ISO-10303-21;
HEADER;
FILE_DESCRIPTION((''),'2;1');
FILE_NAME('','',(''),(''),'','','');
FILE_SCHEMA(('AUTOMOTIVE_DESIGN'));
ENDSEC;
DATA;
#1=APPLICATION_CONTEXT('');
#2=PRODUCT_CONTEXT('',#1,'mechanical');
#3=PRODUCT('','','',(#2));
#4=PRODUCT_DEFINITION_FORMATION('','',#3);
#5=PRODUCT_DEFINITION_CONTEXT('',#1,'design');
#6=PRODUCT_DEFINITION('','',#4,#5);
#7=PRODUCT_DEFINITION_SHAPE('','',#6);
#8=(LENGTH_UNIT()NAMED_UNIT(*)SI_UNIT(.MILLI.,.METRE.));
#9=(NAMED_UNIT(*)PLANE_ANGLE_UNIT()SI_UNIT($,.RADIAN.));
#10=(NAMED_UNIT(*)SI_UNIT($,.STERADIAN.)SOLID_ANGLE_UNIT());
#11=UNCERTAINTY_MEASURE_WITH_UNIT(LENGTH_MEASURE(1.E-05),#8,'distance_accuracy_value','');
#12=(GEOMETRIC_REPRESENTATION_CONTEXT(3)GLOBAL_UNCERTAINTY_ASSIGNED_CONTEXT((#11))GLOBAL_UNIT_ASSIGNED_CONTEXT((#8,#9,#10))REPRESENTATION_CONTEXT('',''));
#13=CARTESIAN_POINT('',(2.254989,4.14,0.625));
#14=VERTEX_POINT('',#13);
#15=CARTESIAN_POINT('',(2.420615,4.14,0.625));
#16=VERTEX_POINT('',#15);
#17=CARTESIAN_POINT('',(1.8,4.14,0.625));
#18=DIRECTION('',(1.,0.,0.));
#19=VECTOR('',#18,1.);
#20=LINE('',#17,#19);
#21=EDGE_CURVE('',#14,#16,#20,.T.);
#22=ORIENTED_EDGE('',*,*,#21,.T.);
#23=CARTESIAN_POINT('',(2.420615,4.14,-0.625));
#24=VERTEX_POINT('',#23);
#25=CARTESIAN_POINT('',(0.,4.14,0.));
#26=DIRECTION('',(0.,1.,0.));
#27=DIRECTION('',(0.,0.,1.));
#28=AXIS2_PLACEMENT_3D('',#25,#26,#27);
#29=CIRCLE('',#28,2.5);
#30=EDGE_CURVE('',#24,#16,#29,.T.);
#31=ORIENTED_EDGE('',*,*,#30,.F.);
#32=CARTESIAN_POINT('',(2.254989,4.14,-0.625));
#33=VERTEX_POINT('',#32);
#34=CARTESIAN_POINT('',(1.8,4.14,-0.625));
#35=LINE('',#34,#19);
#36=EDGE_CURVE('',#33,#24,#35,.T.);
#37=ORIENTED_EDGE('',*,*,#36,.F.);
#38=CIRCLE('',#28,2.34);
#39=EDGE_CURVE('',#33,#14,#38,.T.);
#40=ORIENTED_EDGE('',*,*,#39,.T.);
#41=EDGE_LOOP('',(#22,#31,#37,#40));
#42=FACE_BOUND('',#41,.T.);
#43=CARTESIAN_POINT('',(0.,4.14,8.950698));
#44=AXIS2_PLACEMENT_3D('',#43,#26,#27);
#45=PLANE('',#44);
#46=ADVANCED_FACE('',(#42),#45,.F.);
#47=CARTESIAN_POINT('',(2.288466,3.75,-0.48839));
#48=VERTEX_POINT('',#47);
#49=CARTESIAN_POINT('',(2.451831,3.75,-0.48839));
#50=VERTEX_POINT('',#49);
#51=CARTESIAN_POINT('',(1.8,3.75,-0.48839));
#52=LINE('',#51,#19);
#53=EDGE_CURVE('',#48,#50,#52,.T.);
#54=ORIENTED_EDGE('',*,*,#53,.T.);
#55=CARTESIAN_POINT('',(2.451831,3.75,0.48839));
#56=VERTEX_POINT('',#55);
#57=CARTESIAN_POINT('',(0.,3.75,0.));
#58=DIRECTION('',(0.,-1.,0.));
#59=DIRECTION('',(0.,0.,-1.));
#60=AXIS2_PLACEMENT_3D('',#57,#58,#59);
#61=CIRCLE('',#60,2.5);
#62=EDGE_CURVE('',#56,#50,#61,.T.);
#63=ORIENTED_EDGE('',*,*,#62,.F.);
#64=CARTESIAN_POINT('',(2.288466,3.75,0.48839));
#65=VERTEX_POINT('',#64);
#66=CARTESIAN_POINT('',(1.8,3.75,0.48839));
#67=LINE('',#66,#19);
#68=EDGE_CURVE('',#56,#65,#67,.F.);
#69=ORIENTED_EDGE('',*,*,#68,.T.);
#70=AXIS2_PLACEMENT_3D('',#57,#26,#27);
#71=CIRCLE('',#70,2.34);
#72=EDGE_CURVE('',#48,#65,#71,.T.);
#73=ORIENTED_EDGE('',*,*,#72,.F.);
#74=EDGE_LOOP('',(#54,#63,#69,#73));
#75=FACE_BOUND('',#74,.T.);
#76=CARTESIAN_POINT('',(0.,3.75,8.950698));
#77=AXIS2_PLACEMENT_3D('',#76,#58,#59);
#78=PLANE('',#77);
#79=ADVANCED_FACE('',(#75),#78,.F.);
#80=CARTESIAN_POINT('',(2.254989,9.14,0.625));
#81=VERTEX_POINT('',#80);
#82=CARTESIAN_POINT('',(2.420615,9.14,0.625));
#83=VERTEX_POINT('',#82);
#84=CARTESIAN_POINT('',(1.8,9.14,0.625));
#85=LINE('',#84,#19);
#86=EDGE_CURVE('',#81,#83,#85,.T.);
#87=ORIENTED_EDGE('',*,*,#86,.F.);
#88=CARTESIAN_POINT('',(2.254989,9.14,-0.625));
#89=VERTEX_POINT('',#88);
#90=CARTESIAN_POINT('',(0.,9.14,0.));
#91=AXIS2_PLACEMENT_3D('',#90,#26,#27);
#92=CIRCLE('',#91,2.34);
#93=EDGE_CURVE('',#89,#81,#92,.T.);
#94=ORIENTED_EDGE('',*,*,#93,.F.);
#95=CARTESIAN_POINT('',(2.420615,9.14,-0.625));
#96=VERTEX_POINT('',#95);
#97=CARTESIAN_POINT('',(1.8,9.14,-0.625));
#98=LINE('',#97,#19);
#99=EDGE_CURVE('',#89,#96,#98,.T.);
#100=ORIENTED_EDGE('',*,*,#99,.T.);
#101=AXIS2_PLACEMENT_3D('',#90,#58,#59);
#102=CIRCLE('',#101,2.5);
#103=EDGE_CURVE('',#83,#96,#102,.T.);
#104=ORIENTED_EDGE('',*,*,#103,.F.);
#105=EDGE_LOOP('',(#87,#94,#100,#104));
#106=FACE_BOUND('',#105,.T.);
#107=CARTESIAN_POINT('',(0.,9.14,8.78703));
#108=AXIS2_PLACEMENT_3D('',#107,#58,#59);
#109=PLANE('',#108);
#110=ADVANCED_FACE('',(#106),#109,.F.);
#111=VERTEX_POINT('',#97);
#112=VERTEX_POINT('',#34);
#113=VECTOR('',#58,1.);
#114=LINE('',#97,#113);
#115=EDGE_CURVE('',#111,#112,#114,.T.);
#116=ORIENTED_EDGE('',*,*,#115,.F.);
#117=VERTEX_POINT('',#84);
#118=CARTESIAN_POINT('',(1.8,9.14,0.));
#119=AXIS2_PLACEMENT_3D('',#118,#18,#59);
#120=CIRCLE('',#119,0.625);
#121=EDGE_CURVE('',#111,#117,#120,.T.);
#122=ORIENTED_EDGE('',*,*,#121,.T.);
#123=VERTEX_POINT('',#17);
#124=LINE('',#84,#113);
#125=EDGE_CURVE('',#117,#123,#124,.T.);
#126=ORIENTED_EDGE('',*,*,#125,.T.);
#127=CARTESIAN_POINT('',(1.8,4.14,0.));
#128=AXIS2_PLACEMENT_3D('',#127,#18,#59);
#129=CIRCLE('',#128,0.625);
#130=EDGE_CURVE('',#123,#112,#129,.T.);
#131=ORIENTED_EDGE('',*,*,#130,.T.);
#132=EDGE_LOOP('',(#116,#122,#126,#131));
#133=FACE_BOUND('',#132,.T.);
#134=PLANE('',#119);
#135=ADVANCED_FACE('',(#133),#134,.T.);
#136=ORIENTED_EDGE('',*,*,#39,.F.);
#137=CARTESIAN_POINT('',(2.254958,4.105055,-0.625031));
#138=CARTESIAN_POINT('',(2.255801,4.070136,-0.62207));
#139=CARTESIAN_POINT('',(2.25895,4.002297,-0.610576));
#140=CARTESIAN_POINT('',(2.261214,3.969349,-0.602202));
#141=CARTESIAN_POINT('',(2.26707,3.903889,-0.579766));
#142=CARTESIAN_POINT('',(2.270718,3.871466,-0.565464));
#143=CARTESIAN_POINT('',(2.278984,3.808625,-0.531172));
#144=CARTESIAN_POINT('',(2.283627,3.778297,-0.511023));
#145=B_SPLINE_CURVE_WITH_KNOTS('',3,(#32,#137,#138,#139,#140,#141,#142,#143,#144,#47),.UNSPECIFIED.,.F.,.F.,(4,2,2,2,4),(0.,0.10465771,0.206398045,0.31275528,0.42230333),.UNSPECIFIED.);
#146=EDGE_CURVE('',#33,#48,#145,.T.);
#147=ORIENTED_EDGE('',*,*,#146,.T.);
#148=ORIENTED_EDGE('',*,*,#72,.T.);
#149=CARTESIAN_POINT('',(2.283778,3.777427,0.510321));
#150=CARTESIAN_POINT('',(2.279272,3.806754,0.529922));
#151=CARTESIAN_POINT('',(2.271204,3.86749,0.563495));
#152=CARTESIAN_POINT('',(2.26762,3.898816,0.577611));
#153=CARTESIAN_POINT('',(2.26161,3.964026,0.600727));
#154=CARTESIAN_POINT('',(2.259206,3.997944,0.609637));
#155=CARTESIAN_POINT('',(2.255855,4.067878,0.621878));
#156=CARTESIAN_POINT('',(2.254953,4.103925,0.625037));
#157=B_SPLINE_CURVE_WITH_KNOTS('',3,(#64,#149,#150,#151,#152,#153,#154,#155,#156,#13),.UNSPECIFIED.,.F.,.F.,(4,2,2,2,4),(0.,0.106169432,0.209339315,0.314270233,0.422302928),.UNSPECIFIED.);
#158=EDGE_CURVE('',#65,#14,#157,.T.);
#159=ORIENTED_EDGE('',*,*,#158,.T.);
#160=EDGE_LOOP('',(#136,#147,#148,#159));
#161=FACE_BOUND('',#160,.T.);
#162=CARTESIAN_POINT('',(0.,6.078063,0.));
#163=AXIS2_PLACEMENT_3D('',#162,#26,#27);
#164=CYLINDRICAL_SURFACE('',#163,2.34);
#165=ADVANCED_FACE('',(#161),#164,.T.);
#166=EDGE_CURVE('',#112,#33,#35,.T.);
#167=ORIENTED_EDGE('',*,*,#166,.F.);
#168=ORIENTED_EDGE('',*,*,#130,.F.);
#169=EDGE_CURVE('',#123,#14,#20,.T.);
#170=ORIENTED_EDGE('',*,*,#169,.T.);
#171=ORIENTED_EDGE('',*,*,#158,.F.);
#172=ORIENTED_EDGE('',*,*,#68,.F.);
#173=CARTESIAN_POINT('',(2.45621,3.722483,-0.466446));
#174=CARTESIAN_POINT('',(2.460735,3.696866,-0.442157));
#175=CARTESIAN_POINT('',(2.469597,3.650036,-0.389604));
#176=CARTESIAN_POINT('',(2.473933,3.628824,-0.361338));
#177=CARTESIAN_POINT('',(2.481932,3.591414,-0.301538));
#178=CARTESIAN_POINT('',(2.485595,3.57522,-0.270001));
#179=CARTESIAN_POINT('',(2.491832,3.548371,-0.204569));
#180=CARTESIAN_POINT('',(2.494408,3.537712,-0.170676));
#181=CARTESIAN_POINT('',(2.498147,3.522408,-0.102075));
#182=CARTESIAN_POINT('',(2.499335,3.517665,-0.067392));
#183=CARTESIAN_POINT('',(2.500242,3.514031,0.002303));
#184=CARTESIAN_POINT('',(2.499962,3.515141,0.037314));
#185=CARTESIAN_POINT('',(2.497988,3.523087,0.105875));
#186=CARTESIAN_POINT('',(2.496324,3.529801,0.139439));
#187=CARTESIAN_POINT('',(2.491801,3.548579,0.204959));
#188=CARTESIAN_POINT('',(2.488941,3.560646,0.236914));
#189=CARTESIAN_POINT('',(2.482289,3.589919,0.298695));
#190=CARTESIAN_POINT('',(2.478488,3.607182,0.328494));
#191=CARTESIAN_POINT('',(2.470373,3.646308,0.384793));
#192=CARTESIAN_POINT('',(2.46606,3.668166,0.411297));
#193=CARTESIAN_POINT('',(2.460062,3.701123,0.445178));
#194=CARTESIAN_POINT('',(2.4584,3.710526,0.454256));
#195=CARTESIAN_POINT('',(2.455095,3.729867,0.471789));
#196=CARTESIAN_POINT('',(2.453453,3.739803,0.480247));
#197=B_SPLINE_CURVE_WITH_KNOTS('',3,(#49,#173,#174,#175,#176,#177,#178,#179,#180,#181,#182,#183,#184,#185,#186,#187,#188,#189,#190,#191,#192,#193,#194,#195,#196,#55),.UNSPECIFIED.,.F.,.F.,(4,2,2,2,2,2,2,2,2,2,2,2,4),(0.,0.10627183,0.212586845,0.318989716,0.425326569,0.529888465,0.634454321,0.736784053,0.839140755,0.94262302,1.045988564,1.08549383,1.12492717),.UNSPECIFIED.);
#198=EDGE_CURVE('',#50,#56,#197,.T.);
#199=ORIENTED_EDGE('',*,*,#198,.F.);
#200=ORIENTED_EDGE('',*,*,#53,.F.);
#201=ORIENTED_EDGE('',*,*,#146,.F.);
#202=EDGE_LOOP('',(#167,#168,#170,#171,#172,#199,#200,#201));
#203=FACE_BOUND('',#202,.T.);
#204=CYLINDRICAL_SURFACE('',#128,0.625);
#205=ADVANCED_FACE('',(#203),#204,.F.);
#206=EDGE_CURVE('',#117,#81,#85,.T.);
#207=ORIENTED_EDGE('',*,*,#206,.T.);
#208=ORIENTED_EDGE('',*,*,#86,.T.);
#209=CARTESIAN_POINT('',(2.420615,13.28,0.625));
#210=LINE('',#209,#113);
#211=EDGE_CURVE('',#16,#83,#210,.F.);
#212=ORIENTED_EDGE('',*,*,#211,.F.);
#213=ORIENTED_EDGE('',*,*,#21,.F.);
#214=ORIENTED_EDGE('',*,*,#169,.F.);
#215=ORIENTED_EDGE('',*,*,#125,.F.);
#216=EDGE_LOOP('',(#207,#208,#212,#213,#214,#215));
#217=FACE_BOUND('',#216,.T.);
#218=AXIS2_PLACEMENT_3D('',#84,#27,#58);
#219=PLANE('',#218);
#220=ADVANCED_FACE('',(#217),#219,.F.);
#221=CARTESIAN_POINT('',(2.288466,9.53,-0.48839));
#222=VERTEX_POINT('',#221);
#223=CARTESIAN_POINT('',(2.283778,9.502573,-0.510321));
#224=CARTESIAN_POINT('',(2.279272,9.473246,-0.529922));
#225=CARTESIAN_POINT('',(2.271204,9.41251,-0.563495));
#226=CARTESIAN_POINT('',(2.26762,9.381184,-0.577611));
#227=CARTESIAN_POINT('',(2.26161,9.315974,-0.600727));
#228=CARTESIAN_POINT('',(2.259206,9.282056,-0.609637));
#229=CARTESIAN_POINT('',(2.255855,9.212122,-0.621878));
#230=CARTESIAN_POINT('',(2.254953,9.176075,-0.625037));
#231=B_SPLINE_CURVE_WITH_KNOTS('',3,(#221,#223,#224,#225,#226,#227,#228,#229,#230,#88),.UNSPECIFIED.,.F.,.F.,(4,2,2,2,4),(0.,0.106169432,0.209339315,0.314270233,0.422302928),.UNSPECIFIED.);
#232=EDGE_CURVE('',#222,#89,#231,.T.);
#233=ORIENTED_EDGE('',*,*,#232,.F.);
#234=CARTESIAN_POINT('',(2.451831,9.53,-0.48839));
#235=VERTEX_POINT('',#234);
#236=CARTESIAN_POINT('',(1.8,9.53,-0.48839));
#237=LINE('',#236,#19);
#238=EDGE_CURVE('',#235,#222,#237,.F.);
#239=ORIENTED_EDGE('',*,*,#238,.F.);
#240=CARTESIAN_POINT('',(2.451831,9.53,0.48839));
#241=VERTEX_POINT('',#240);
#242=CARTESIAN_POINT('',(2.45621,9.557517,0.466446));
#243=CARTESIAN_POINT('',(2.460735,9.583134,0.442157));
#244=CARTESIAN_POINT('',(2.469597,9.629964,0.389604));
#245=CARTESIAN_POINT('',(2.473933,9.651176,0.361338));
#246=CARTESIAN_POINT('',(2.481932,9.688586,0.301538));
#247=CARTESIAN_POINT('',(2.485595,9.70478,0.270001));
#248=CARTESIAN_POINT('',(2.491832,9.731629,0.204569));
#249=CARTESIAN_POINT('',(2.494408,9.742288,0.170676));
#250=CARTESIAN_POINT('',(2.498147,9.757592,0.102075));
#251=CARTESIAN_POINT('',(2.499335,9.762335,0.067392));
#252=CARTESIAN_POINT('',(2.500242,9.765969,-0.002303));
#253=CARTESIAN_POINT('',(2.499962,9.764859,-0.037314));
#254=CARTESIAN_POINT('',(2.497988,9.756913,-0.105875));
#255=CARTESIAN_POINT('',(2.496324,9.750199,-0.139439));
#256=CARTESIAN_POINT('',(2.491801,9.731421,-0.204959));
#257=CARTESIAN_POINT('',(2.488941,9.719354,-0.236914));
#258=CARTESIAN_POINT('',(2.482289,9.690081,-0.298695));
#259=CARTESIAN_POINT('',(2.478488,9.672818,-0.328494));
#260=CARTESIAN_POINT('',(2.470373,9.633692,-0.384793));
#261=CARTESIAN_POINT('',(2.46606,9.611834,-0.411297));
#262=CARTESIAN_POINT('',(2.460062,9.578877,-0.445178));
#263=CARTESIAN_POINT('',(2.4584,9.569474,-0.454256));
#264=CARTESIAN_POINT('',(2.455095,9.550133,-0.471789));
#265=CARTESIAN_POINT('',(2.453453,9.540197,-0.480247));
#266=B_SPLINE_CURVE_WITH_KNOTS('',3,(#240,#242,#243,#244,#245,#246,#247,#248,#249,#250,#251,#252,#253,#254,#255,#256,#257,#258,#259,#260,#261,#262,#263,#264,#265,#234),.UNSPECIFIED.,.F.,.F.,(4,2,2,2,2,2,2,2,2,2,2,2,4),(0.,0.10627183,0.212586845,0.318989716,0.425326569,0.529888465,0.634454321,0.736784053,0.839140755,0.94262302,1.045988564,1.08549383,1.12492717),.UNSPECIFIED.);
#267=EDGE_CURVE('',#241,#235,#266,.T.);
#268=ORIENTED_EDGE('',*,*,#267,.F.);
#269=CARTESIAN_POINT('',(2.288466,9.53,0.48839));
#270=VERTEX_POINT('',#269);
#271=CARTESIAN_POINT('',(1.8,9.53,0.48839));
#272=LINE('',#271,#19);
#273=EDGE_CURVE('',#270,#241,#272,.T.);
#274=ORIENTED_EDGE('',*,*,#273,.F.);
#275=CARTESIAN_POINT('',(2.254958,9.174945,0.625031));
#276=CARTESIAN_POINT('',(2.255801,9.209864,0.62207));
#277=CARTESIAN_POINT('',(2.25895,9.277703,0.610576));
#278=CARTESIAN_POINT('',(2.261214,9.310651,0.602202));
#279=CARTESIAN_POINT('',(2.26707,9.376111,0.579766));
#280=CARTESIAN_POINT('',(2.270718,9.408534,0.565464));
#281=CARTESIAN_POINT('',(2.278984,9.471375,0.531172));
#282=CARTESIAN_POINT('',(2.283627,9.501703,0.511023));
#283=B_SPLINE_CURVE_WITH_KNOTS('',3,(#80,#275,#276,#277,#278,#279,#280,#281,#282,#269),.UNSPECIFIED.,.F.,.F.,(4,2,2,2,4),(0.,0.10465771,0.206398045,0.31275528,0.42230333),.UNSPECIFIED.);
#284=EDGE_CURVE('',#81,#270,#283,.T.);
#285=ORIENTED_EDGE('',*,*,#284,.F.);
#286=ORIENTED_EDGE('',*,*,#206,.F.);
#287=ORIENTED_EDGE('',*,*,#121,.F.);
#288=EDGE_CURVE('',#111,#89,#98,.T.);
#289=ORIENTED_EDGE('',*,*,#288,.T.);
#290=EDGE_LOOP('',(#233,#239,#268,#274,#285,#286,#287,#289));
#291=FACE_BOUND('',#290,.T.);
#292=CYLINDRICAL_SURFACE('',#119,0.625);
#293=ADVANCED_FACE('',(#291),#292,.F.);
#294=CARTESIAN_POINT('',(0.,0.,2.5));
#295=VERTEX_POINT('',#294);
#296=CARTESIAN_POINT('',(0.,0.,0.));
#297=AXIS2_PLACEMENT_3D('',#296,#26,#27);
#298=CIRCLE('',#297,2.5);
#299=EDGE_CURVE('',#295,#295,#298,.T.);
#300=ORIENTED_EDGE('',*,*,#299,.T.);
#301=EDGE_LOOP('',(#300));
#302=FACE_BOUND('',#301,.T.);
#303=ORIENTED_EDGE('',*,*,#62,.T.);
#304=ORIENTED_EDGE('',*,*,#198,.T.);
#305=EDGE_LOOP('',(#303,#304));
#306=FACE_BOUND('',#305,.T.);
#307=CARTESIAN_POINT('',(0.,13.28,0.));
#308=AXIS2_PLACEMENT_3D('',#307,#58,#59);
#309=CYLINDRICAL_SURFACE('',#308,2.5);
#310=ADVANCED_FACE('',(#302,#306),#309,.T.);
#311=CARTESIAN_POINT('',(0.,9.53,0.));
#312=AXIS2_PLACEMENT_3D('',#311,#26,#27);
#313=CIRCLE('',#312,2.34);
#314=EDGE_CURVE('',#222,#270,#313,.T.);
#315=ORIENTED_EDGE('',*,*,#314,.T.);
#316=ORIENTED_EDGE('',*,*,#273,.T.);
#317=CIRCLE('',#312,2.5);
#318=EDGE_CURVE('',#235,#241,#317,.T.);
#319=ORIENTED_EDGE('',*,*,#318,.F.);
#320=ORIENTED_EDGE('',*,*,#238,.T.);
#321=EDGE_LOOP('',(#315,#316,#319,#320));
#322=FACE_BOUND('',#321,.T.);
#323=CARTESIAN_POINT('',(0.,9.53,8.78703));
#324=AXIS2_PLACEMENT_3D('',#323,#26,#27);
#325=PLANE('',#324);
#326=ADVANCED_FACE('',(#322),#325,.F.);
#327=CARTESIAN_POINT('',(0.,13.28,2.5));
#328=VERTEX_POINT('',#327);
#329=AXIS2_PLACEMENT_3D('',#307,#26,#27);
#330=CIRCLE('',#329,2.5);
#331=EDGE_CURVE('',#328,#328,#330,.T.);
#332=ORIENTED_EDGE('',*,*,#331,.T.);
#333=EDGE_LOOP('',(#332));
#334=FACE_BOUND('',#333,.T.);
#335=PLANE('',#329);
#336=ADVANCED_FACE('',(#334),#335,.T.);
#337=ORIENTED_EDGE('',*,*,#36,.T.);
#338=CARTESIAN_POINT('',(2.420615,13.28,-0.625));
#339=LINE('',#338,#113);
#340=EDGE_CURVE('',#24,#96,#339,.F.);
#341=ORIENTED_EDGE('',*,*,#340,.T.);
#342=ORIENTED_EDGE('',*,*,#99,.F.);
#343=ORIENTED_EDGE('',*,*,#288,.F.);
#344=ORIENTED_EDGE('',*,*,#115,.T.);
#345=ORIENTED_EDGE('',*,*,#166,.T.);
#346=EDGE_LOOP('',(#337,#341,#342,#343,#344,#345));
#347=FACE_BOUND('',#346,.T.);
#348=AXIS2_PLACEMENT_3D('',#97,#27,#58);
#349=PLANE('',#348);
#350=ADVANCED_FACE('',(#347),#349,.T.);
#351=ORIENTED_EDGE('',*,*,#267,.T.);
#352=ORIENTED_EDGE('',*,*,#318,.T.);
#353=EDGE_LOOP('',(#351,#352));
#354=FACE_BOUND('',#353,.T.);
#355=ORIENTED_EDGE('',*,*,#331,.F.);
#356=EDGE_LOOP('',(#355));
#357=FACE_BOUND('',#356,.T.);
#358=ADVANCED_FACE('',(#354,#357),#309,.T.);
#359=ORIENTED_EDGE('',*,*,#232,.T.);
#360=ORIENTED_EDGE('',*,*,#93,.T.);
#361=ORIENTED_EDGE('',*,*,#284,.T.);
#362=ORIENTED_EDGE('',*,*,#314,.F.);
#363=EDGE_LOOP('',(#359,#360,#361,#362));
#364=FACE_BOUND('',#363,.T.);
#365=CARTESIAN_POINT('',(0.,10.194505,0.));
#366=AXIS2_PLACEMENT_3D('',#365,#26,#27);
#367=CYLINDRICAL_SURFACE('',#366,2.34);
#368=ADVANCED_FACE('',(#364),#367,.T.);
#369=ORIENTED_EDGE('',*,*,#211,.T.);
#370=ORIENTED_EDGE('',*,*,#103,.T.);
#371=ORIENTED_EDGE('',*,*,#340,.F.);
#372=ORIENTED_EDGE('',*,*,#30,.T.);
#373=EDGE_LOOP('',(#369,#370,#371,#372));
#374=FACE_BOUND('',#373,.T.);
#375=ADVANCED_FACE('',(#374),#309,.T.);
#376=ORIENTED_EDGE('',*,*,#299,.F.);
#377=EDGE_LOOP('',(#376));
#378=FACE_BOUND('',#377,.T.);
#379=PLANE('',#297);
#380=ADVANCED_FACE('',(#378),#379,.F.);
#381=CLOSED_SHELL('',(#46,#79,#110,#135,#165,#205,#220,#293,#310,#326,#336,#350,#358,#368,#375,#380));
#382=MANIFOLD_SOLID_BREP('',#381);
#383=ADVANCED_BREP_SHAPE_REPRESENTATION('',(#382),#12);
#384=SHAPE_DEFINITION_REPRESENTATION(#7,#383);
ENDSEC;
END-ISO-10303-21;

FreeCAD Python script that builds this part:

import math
import FreeCAD as App
import Part
import Sketcher
from FreeCAD import Vector

doc = App.newDocument("Part")
body = doc.addObject("PartDesign::Body", "Body")

sketch1 = body.newObject("Sketcher::SketchObject", "Sketch")
sketch1.AttachmentSupport = (doc.getObject("XZ_Plane"), [""])
sketch1.MapMode = "FlatFace"
sketch1.addGeometry(Part.Circle(Vector(0, 0, 0), Vector(0, 0, 1), 2.5), False)
sketch1.addConstraint(Sketcher.Constraint("Coincident", 0, 3, -1, 1))
sketch1.addConstraint(Sketcher.Constraint("Diameter", 0, 5.0))
pad1 = body.newObject("PartDesign::Pad", "Pad")
pad1.Profile = sketch1
pad1.Length = 13.28
pad1.Reversed = True

sketch2 = body.newObject("Sketcher::SketchObject", "Sketch001")
sketch2.AttachmentSupport = (doc.getObject("YZ_Plane"), [""])
sketch2.MapMode = "FlatFace"
sketch2.addGeometry(Part.LineSegment(Vector(9.53, 8.78703, 0), Vector(9.14, 8.78703, 0)), False)
sketch2.addGeometry(Part.LineSegment(Vector(9.14, 8.78703, 0), Vector(9.14, 2.34, 0)), False)
sketch2.addGeometry(Part.LineSegment(Vector(9.14, 2.34, 0), Vector(9.53, 2.34, 0)), False)
sketch2.addGeometry(Part.LineSegment(Vector(9.53, 2.34, 0), Vector(9.53, 8.78703, 0)), False)
sketch2.addConstraint(Sketcher.Constraint("Coincident", 0, 2, 1, 1))
sketch2.addConstraint(Sketcher.Constraint("Coincident", 1, 2, 2, 1))
sketch2.addConstraint(Sketcher.Constraint("Coincident", 2, 2, 3, 1))
sketch2.addConstraint(Sketcher.Constraint("Coincident", 3, 2, 0, 1))
sketch2.addConstraint(Sketcher.Constraint("Horizontal", 0))
sketch2.addConstraint(Sketcher.Constraint("Vertical", 1))
sketch2.addConstraint(Sketcher.Constraint("Horizontal", 2))
sketch2.addConstraint(Sketcher.Constraint("Vertical", 3))
sketch2.addConstraint(Sketcher.Constraint("DistanceX", 0, 2, 0, 1, 0.39))
sketch2.addConstraint(Sketcher.Constraint("DistanceX", -1, 1, 0, 2, 9.14))
sketch2.addConstraint(Sketcher.Constraint("DistanceY", -1, 1, 1, 2, 2.34))
sketch2.addConstraint(Sketcher.Constraint("DistanceY", 1, 2, 1, 1, 6.44703))
groove = body.newObject("PartDesign::Groove", "Groove")
groove.Profile = sketch2
groove.ReferenceAxis = (sketch2, ["H_Axis"])
groove.Angle = 360

sketch3 = body.newObject("Sketcher::SketchObject", "Sketch002")
sketch3.AttachmentSupport = (doc.getObject("YZ_Plane"), [""])
sketch3.MapMode = "FlatFace"
sketch3.addGeometry(Part.LineSegment(Vector(4.14, 8.950698, 0), Vector(3.75, 8.950698, 0)), False)
sketch3.addGeometry(Part.LineSegment(Vector(3.75, 8.950698, 0), Vector(3.75, 2.34, 0)), False)
sketch3.addGeometry(Part.LineSegment(Vector(3.75, 2.34, 0), Vector(4.14, 2.34, 0)), False)
sketch3.addGeometry(Part.LineSegment(Vector(4.14, 2.34, 0), Vector(4.14, 8.950698, 0)), False)
sketch3.addConstraint(Sketcher.Constraint("Coincident", 0, 2, 1, 1))
sketch3.addConstraint(Sketcher.Constraint("Coincident", 1, 2, 2, 1))
sketch3.addConstraint(Sketcher.Constraint("Coincident", 2, 2, 3, 1))
sketch3.addConstraint(Sketcher.Constraint("Coincident", 3, 2, 0, 1))
sketch3.addConstraint(Sketcher.Constraint("Horizontal", 0))
sketch3.addConstraint(Sketcher.Constraint("Vertical", 1))
sketch3.addConstraint(Sketcher.Constraint("Horizontal", 2))
sketch3.addConstraint(Sketcher.Constraint("Vertical", 3))
sketch3.addConstraint(Sketcher.Constraint("DistanceX", 0, 2, 0, 1, 0.39))
sketch3.addConstraint(Sketcher.Constraint("DistanceX", -1, 1, 0, 2, 3.75))
sketch3.addConstraint(Sketcher.Constraint("DistanceY", -1, 1, 1, 2, 2.34))
sketch3.addConstraint(Sketcher.Constraint("DistanceY", 1, 2, 1, 1, 6.610698))
groove2 = body.newObject("PartDesign::Groove", "Groove001")
groove2.Profile = sketch3
groove2.ReferenceAxis = (sketch3, ["H_Axis"])
groove2.Angle = 360

sketch4 = body.newObject("Sketcher::SketchObject", "Sketch003")
sketch4.AttachmentSupport = (doc.getObject("YZ_Plane"), [""])
sketch4.MapMode = "FlatFace"
sketch4.AttachmentOffset = App.Placement(Vector(0, 0, 2.5), App.Rotation())
sketch4.addGeometry(Part.LineSegment(Vector(4.14, -0.625, 0), Vector(9.14, -0.625, 0)), False)
sketch4.addGeometry(Part.ArcOfCircle(Part.Circle(Vector(9.14, 0, 0), Vector(0, 0, 1), 0.625), math.radians(-90), math.radians(90)), False)
sketch4.addGeometry(Part.LineSegment(Vector(9.14, 0.625, 0), Vector(4.14, 0.625, 0)), False)
sketch4.addGeometry(Part.ArcOfCircle(Part.Circle(Vector(4.14, 0, 0), Vector(0, 0, 1), 0.625), math.radians(90), math.radians(270)), False)
sketch4.addConstraint(Sketcher.Constraint("Tangent", 0, 2, 1, 1))
sketch4.addConstraint(Sketcher.Constraint("Tangent", 1, 2, 2, 1))
sketch4.addConstraint(Sketcher.Constraint("Tangent", 2, 2, 3, 1))
sketch4.addConstraint(Sketcher.Constraint("Tangent", 3, 2, 0, 1))
sketch4.addConstraint(Sketcher.Constraint("Horizontal", 0))
sketch4.addConstraint(Sketcher.Constraint("Horizontal", 2))
sketch4.addConstraint(Sketcher.Constraint("PointOnObject", 1, 3, -1))
sketch4.addConstraint(Sketcher.Constraint("DistanceX", 0, 1, 0, 2, 5.0))
sketch4.addConstraint(Sketcher.Constraint("Radius", 1, 0.625))
sketch4.addConstraint(Sketcher.Constraint("DistanceX", -1, 1, 1, 3, 9.14))
pocket1 = body.newObject("PartDesign::Pocket", "Pocket")
pocket1.Profile = sketch4
pocket1.Length = 0.7

doc.recompute()
